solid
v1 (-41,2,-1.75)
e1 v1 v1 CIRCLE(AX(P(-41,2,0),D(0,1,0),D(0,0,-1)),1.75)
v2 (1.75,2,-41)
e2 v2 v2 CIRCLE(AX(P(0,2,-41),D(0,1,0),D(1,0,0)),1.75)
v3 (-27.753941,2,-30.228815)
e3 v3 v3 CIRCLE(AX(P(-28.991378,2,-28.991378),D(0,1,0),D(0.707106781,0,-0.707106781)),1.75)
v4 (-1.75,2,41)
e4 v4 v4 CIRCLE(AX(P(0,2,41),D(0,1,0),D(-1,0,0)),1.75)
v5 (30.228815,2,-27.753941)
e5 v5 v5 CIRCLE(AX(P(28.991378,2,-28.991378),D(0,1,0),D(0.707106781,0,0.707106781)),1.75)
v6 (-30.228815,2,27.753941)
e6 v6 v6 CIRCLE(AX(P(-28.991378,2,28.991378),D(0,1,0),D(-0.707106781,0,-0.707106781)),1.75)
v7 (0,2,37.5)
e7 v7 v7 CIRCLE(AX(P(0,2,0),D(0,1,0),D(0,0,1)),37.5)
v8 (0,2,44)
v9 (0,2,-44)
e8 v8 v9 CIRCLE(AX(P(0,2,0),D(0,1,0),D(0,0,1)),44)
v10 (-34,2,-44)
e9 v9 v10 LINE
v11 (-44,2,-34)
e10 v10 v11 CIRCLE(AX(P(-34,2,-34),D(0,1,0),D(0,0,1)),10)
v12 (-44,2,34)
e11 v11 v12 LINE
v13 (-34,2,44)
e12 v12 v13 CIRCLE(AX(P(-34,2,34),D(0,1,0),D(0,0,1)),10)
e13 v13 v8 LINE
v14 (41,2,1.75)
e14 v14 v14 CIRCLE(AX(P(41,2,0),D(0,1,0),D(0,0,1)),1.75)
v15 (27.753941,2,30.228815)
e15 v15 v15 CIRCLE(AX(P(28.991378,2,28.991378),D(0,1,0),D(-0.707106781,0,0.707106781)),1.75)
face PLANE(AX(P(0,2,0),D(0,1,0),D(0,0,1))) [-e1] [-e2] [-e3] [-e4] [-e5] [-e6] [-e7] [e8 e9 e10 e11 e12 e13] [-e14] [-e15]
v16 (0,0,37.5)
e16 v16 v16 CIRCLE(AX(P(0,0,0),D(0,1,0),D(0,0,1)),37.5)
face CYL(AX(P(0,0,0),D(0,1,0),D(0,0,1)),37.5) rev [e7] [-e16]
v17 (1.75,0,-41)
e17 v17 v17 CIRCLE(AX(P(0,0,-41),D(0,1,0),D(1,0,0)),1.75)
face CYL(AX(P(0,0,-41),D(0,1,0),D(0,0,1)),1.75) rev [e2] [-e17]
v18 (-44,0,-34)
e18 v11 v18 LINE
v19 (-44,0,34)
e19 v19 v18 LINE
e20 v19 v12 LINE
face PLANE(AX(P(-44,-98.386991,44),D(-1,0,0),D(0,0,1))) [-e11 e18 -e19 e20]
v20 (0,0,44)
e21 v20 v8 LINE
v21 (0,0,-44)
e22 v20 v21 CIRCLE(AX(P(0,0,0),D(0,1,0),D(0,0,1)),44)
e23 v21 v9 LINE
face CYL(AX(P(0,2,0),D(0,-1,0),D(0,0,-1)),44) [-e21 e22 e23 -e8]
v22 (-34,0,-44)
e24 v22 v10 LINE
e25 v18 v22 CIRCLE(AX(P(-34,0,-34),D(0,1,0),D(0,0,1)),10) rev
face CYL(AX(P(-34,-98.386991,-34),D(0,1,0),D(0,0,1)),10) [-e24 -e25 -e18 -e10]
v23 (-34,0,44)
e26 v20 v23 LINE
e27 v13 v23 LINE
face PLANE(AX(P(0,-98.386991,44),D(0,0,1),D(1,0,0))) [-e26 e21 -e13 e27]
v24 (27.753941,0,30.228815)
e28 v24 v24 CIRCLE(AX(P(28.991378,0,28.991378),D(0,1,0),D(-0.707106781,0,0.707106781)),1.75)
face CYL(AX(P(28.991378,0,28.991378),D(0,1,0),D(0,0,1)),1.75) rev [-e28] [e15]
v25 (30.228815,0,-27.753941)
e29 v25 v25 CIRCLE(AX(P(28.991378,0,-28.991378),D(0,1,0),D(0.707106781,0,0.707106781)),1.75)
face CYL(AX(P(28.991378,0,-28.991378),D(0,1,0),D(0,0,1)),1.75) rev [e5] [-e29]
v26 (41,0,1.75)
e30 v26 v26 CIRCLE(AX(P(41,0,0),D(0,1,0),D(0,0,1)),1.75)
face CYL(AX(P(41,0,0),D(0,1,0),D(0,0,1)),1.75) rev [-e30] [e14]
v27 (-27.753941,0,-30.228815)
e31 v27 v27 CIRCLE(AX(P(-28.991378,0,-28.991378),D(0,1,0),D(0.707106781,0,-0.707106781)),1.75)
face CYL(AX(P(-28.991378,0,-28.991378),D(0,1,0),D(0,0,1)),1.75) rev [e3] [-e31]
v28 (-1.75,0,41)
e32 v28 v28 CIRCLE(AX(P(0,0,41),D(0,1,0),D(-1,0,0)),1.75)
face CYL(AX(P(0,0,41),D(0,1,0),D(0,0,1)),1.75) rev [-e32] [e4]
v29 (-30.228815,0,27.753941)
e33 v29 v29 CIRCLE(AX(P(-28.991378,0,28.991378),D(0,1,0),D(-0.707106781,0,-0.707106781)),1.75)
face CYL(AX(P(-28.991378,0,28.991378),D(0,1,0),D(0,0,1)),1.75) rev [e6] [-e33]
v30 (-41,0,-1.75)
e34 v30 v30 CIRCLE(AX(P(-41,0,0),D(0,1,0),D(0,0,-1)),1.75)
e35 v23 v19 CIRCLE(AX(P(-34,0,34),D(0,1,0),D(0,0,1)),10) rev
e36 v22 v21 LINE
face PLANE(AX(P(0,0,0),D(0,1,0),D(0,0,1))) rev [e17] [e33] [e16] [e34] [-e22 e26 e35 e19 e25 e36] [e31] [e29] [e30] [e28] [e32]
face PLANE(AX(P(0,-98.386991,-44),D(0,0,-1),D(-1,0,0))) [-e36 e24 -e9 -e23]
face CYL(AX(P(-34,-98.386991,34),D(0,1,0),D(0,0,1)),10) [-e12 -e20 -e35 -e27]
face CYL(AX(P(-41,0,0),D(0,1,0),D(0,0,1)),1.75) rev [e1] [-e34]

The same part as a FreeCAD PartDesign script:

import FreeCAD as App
import Part
import Sketcher

V = App.Vector


def edges_at(feature, points):
    """Names of the edges that pass closest to the given points."""
    edges = feature.Shape.Edges
    near = lambda p: min(range(len(edges)), key=lambda i: edges[i].distToShape(Part.Vertex(*p))[0])
    return sorted({f"Edge{near(p) + 1}" for p in points})

doc = App.newDocument("Part")
params = doc.addObject("Spreadsheet::Sheet", "Params")
for row, (alias, value) in enumerate([
    ("sketch1_diameter", "88 mm"),
    ("pad1_length", "2 mm"),
    ("sketch2_width", "44 mm"),
    ("sketch2_height", "88 mm"),
    ("pad2_length", "2 mm"),
    ("sketch3_diameter", "3.5 mm"),
    ("sketch4_diameter", "75 mm"),
    ("fillet_radius", "10 mm"),
], start=1):
    params.set(f"A{row}", alias)
    params.set(f"B{row}", "=" + value)
    params.setAlias(f"B{row}", alias)

body = doc.addObject("PartDesign::Body", "Body")

sketch1 = body.newObject("Sketcher::SketchObject", "Sketch")
sketch1.AttachmentSupport = (doc.getObject("XZ_Plane"), [""])
sketch1.MapMode = "FlatFace"
sketch1.addGeometry(Part.Circle(V(0, 0, 0), V(0, 0, 1), 44), False)
sketch1.addConstraint(Sketcher.Constraint("Coincident", 0, 3, -1, 1))
sketch1.addConstraint(Sketcher.Constraint("Diameter", 0, 88.0))
sketch1.setExpression("Constraints[1]", "Params.sketch1_diameter")
pad1 = body.newObject("PartDesign::Pad", "Pad")
pad1.Profile = sketch1
pad1.setExpression("Length", "Params.pad1_length")
pad1.Reversed = True

sketch2 = body.newObject("Sketcher::SketchObject", "Sketch001")
sketch2.AttachmentSupport = (doc.getObject("XZ_Plane"), [""])
sketch2.MapMode = "FlatFace"
sketch2.AttachmentOffset = App.Placement(V(0, 0, -2), App.Rotation())
sketch2.addGeometry(Part.LineSegment(V(-44, -44, 0), V(-44, 44, 0)), False)
sketch2.addGeometry(Part.LineSegment(V(-44, 44, 0), V(0, 44, 0)), False)
sketch2.addGeometry(Part.LineSegment(V(0, 44, 0), V(0, -44, 0)), False)
sketch2.addGeometry(Part.LineSegment(V(0, -44, 0), V(-44, -44, 0)), False)
sketch2.addConstraint(Sketcher.Constraint("Coincident", 0, 2, 1, 1))
sketch2.addConstraint(Sketcher.Constraint("Coincident", 1, 2, 2, 1))
sketch2.addConstraint(Sketcher.Constraint("Coincident", 2, 2, 3, 1))
sketch2.addConstraint(Sketcher.Constraint("Coincident", 3, 2, 0, 1))
sketch2.addConstraint(Sketcher.Constraint("Vertical", 0))
sketch2.addConstraint(Sketcher.Constraint("Horizontal", 1))
sketch2.addConstraint(Sketcher.Constraint("Vertical", 2))
sketch2.addConstraint(Sketcher.Constraint("Horizontal", 3))
sketch2.addConstraint(Sketcher.Constraint("Symmetric", 1, 2, 2, 2, -1, 1))
sketch2.addConstraint(Sketcher.Constraint("DistanceX", 1, 1, 1, 2, 44.0))
sketch2.addConstraint(Sketcher.Constraint("DistanceY", 0, 1, 0, 2, 88.0))
sketch2.setExpression("Constraints[9]", "Params.sketch2_width")
sketch2.setExpression("Constraints[10]", "Params.sketch2_height")
pad2 = body.newObject("PartDesign::Pad", "Pad001")
pad2.Profile = sketch2
pad2.setExpression("Length", "Params.pad2_length")

sketch3 = body.newObject("Sketcher::SketchObject", "Sketch002")
sketch3.AttachmentSupport = (doc.getObject("XZ_Plane"), [""])
sketch3.MapMode = "FlatFace"
sketch3.AttachmentOffset = App.Placement(V(0, 0, -2), App.Rotation())
sketch3.addGeometry(Part.Circle(V(41, 0, 0), V(0, 0, 1), 1.8), False)
sketch3.addConstraint(Sketcher.Constraint("PointOnObject", 0, 3, -1))
sketch3.addConstraint(Sketcher.Constraint("Diameter", 0, 3.5))
sketch3.addConstraint(Sketcher.Constraint("DistanceX", -1, 1, 0, 3, 41.0))
sketch3.setExpression("Constraints[1]", "Params.sketch3_diameter")
pocket1 = body.newObject("PartDesign::Pocket", "Pocket")
pocket1.Profile = sketch3
pocket1.Type = "ThroughAll"
pocket1.Reversed = True
doc.recompute()

polarpattern = body.newObject("PartDesign::PolarPattern", "PolarPattern")
polarpattern.Originals = [pocket1]
polarpattern.Axis = (doc.getObject("Y_Axis"), [""])
polarpattern.Angle = 360
polarpattern.Occurrences = 8
body.Tip = polarpattern

sketch4 = body.newObject("Sketcher::SketchObject", "Sketch003")
sketch4.AttachmentSupport = (doc.getObject("XZ_Plane"), [""])
sketch4.MapMode = "FlatFace"
sketch4.AttachmentOffset = App.Placement(V(0, 0, -2), App.Rotation())
sketch4.addGeometry(Part.Circle(V(0, 0, 0), V(0, 0, 1), 38), False)
sketch4.addConstraint(Sketcher.Constraint("Coincident", 0, 3, -1, 1))
sketch4.addConstraint(Sketcher.Constraint("Diameter", 0, 75.0))
sketch4.setExpression("Constraints[1]", "Params.sketch4_diameter")
pocket2 = body.newObject("PartDesign::Pocket", "Pocket001")
pocket2.Profile = sketch4
pocket2.Type = "ThroughAll"
pocket2.Reversed = True
doc.recompute()

fillet = body.newObject("PartDesign::Fillet", "Fillet")
fillet.Base = (pocket2, edges_at(pocket2, [(-44, 1, 44), (-44, 1, -44)]))
fillet.setExpression("Radius", "Params.fillet_radius")

doc.recompute()
